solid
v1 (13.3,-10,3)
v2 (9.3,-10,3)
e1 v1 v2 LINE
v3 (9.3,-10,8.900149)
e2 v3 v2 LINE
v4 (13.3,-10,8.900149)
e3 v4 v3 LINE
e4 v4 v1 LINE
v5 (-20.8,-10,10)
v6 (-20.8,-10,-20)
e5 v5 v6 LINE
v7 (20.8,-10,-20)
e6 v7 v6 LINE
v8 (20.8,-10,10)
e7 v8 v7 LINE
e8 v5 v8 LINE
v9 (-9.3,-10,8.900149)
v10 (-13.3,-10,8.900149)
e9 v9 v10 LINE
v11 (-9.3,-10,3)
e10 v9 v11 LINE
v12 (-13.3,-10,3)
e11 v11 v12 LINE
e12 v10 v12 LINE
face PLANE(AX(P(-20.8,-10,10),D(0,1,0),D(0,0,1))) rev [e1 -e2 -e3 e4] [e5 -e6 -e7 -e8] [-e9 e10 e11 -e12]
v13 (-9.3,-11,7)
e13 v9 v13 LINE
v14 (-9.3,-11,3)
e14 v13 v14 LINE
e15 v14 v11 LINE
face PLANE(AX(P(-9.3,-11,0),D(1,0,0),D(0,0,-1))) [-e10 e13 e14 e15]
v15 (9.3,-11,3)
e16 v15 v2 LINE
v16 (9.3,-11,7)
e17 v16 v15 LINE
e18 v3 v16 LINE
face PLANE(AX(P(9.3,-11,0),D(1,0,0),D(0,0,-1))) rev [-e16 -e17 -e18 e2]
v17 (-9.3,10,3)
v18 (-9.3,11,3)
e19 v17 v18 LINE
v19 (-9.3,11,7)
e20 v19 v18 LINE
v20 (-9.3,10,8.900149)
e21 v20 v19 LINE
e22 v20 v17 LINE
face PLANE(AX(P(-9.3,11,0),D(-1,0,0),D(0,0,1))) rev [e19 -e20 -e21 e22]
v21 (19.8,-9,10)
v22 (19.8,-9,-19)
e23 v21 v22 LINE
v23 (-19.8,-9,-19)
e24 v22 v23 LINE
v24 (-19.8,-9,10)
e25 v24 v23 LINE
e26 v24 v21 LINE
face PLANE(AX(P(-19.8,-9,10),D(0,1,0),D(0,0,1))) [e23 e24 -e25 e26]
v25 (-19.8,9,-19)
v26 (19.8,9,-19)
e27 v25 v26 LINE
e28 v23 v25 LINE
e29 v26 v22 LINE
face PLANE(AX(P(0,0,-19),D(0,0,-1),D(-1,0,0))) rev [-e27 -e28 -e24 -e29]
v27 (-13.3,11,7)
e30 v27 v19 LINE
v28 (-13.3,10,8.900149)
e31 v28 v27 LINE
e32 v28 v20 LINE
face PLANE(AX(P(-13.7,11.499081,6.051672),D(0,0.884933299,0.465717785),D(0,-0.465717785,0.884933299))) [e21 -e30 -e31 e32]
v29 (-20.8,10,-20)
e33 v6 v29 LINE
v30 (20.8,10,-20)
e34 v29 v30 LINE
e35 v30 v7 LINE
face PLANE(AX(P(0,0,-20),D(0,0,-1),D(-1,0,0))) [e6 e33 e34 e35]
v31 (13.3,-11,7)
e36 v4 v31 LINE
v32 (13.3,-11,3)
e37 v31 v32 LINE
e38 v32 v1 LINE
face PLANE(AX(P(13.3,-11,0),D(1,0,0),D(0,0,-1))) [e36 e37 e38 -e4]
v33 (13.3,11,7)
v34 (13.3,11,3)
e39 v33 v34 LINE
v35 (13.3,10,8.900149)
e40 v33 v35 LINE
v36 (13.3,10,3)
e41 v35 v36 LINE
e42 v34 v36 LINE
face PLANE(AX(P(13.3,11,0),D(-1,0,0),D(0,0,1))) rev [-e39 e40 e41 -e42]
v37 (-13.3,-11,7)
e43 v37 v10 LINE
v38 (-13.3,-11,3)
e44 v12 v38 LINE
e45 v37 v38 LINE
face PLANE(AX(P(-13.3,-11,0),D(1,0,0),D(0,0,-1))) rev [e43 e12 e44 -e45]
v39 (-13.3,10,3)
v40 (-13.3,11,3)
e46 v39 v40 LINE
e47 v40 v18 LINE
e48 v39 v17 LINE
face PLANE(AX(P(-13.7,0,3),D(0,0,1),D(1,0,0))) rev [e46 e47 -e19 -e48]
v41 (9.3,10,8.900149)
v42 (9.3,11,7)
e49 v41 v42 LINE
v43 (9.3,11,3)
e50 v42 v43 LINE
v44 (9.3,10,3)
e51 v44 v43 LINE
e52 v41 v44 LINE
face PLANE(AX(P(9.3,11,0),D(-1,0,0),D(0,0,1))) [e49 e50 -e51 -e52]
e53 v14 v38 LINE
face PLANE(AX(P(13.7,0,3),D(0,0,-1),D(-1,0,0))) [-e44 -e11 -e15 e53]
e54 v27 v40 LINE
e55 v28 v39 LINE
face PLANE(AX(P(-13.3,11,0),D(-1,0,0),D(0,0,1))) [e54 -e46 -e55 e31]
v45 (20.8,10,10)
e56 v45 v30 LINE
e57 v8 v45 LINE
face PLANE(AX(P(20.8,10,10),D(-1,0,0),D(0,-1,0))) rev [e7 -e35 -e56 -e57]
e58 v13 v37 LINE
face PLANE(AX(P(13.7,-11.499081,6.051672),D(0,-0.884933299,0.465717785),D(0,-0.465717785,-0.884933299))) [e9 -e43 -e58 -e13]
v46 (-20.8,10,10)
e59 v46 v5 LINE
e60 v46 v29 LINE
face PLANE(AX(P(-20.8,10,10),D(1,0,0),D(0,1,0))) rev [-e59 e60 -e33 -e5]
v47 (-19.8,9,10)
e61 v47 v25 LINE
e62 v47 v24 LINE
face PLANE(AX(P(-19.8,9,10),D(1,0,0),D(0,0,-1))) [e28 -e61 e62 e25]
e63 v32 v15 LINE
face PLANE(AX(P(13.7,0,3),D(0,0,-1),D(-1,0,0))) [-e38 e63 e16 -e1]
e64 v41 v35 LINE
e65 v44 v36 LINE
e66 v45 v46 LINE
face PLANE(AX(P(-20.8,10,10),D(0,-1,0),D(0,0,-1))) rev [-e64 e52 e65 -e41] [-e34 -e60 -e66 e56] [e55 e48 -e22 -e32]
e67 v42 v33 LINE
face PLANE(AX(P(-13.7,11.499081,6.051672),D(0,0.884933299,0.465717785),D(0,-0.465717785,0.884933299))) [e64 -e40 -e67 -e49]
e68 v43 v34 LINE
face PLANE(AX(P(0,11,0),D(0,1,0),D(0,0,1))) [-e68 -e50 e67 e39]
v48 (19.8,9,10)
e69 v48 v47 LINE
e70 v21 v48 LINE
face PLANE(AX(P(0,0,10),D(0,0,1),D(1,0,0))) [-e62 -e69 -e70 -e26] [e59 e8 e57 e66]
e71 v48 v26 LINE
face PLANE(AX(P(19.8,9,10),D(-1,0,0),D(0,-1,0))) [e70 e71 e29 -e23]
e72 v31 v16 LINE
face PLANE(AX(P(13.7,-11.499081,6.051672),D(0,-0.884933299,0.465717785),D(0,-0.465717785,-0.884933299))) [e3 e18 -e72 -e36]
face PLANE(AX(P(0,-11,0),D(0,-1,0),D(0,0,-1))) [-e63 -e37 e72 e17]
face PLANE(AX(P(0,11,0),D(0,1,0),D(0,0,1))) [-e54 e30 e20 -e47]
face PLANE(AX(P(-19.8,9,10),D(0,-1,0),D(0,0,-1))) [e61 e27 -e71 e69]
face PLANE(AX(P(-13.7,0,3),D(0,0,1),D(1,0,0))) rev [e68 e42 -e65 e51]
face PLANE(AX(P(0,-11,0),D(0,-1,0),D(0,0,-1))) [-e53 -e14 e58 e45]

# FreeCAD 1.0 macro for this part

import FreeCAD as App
import Part
import Sketcher

V = App.Vector
Q = App.Units.Quantity

doc = App.newDocument("Part")
body = doc.addObject("PartDesign::Body", "Body")

sketch1 = body.newObject("Sketcher::SketchObject", "Sketch")
sketch1.AttachmentSupport = (doc.getObject("XY_Plane"), [""])
sketch1.MapMode = "FlatFace"
sketch1.addGeometry([
    Part.LineSegment(V(-21, 10, 0), V(-21, -10, 0)),
    Part.LineSegment(V(-21, -10, 0), V(21, -10, 0)),
    Part.LineSegment(V(21, -10, 0), V(21, 10, 0)),
    Part.LineSegment(V(21, 10, 0), V(-21, 10, 0)),
    Part.LineSegment(V(20, -9, 0), V(-20, -9, 0)),
    Part.LineSegment(V(-20, -9, 0), V(-20, 9, 0)),
    Part.LineSegment(V(-20, 9, 0), V(20, 9, 0)),
    Part.LineSegment(V(20, 9, 0), V(20, -9, 0)),
], False)
sketch1.addConstraint([
    Sketcher.Constraint("Coincident", 0, 2, 1, 1),
    Sketcher.Constraint("Coincident", 1, 2, 2, 1),
    Sketcher.Constraint("Coincident", 2, 2, 3, 1),
    Sketcher.Constraint("Coincident", 3, 2, 0, 1),
    Sketcher.Constraint("Coincident", 4, 2, 5, 1),
    Sketcher.Constraint("Coincident", 5, 2, 6, 1),
    Sketcher.Constraint("Coincident", 6, 2, 7, 1),
    Sketcher.Constraint("Coincident", 7, 2, 4, 1),
    Sketcher.Constraint("Vertical", 0),
    Sketcher.Constraint("Horizontal", 1),
    Sketcher.Constraint("Vertical", 2),
    Sketcher.Constraint("Horizontal", 3),
    Sketcher.Constraint("Horizontal", 4),
    Sketcher.Constraint("Vertical", 5),
    Sketcher.Constraint("Horizontal", 6),
    Sketcher.Constraint("Vertical", 7),
    Sketcher.Constraint("Symmetric", 0, 2, 2, 2, -1, 1),
    Sketcher.Constraint("Symmetric", 4, 2, 6, 2, -1, 1),
    Sketcher.Constraint("DistanceY", 0, 2, 0, 1, Q("20 mm")),
    Sketcher.Constraint("DistanceY", 5, 1, 5, 2, Q("18 mm")),
    Sketcher.Constraint("DistanceX", 1, 1, 1, 2, Q("41.6 mm")),
    Sketcher.Constraint("DistanceX", 4, 2, 4, 1, Q("39.6 mm")),
])
pad1 = body.newObject("PartDesign::Pad", "Pad")
pad1.Profile = sketch1
pad1.Length = 10

sketch2 = body.newObject("Sketcher::SketchObject", "Sketch001")
sketch2.AttachmentSupport = (doc.getObject("XZ_Plane"), [""])
sketch2.MapMode = "FlatFace"
sketch2.AttachmentOffset = App.Placement(V(0, 0, 10), App.Rotation())
sketch2.addGeometry([
    Part.LineSegment(V(-13.3, 10, 0), V(-13.3, 0, 0)),
    Part.LineSegment(V(-13.3, 0, 0), V(-9.3, 0, 0)),
    Part.LineSegment(V(-9.3, 0, 0), V(-9.3, 10, 0)),
    Part.LineSegment(V(-9.3, 10, 0), V(-13.3, 10, 0)),
    Part.LineSegment(V(9.3, 10, 0), V(9.3, 0, 0)),
    Part.LineSegment(V(9.3, 0, 0), V(13.3, 0, 0)),
    Part.LineSegment(V(13.3, 0, 0), V(13.3, 10, 0)),
    Part.LineSegment(V(13.3, 10, 0), V(9.3, 10, 0)),
], False)
sketch2.addConstraint([
    Sketcher.Constraint("Coincident", 0, 2, 1, 1),
    Sketcher.Constraint("Coincident", 1, 2, 2, 1),
    Sketcher.Constraint("Coincident", 2, 2, 3, 1),
    Sketcher.Constraint("Coincident", 3, 2, 0, 1),
    Sketcher.Constraint("Coincident", 4, 2, 5, 1),
    Sketcher.Constraint("Coincident", 5, 2, 6, 1),
    Sketcher.Constraint("Coincident", 6, 2, 7, 1),
    Sketcher.Constraint("Coincident", 7, 2, 4, 1),
    Sketcher.Constraint("Vertical", 0),
    Sketcher.Constraint("Horizontal", 1),
    Sketcher.Constraint("Vertical", 2),
    Sketcher.Constraint("Horizontal", 3),
    Sketcher.Constraint("Vertical", 4),
    Sketcher.Constraint("Horizontal", 5),
    Sketcher.Constraint("Vertical", 6),
    Sketcher.Constraint("Horizontal", 7),
    Sketcher.Constraint("Symmetric", 1, 2, 4, 2, -1, 1),
    Sketcher.Constraint("Symmetric", 0, 2, 5, 2, -2),
    Sketcher.Constraint("Horizontal", 3, 2, 6, 2),
    Sketcher.Constraint("DistanceX", 1, 1, 1, 2, Q("4 mm")),
    Sketcher.Constraint("DistanceY", 0, 2, 0, 1, Q("10 mm")),
    Sketcher.Constraint("DistanceX", 0, 2, -1, 1, Q("13.3 mm")),
])
pad2 = body.newObject("PartDesign::Pad", "Pad001")
pad2.Profile = sketch2
pad2.Length = 1

sketch3 = body.newObject("Sketcher::SketchObject", "Sketch002")
sketch3.AttachmentSupport = (doc.getObject("YZ_Plane"), [""])
sketch3.MapMode = "FlatFace"
sketch3.AttachmentOffset = App.Placement(V(0, 0, -13.3), App.Rotation())
sketch3.addGeometry([
    Part.LineSegment(V(-10, 8.9, 0), V(-11, 7, 0)),
    Part.LineSegment(V(-11, 7, 0), V(-11, 10, 0)),
    Part.LineSegment(V(-11, 10, 0), V(-10, 10, 0)),
    Part.LineSegment(V(-10, 10, 0), V(-10, 8.9, 0)),
    Part.LineSegment(V(-10, 0, 0), V(-11, 0, 0)),
    Part.LineSegment(V(-11, 0, 0), V(-11, 3, 0)),
    Part.LineSegment(V(-11, 3, 0), V(-10, 3, 0)),
    Part.LineSegment(V(-10, 3, 0), V(-10, 0, 0)),
], False)
sketch3.addConstraint([
    Sketcher.Constraint("Coincident", 0, 2, 1, 1),
    Sketcher.Constraint("Coincident", 1, 2, 2, 1),
    Sketcher.Constraint("Coincident", 2, 2, 3, 1),
    Sketcher.Constraint("Coincident", 3, 2, 0, 1),
    Sketcher.Constraint("Coincident", 4, 2, 5, 1),
    Sketcher.Constraint("Coincident", 5, 2, 6, 1),
    Sketcher.Constraint("Coincident", 6, 2, 7, 1),
    Sketcher.Constraint("Coincident", 7, 2, 4, 1),
    Sketcher.Constraint("Vertical", 1),
    Sketcher.Constraint("Horizontal", 2),
    Sketcher.Constraint("Vertical", 3),
    Sketcher.Constraint("Horizontal", 4),
    Sketcher.Constraint("Vertical", 5),
    Sketcher.Constraint("Horizontal", 6),
    Sketcher.Constraint("Vertical", 7),
    Sketcher.Constraint("PointOnObject", 4, 2, -1),
    Sketcher.Constraint("Vertical", 1, 2, 4, 2),
    Sketcher.Constraint("Vertical", 3, 2, 6, 2),
    Sketcher.Constraint("Equal", 1, 5),
    Sketcher.Constraint("DistanceX", 2, 1, 2, 2, Q("1 mm")),
    Sketcher.Constraint("DistanceY", 1, 1, 1, 2, Q("3 mm")),
    Sketcher.Constraint("DistanceX", 0, 2, -1, 1, Q("11 mm")),
    Sketcher.Constraint("DistanceY", -1, 1, 0, 2, Q("7 mm")),
    Sketcher.Constraint("DistanceY", 3, 2, 3, 1, Q("1.099851 mm")),
])
pocket1 = body.newObject("PartDesign::Pocket", "Pocket")
pocket1.Profile = sketch3
pocket1.Length = 27
pocket1.Reversed = True

sketch4 = body.newObject("Sketcher::SketchObject", "Sketch003")
sketch4.AttachmentSupport = (doc.getObject("XZ_Plane"), [""])
sketch4.MapMode = "FlatFace"
sketch4.AttachmentOffset = App.Placement(V(0, 0, -10), App.Rotation())
sketch4.addGeometry([
    Part.LineSegment(V(9.3, 0, 0), V(9.3, 10, 0)),
    Part.LineSegment(V(9.3, 10, 0), V(13.3, 10, 0)),
    Part.LineSegment(V(13.3, 10, 0), V(13.3, 0, 0)),
    Part.LineSegment(V(13.3, 0, 0), V(9.3, 0, 0)),
    Part.LineSegment(V(-13.3, 0, 0), V(-13.3, 10, 0)),
    Part.LineSegment(V(-13.3, 10, 0), V(-9.3, 10, 0)),
    Part.LineSegment(V(-9.3, 10, 0), V(-9.3, 0, 0)),
    Part.LineSegment(V(-9.3, 0, 0), V(-13.3, 0, 0)),
], False)
sketch4.addConstraint([
    Sketcher.Constraint("Coincident", 0, 2, 1, 1),
    Sketcher.Constraint("Coincident", 1, 2, 2, 1),
    Sketcher.Constraint("Coincident", 2, 2, 3, 1),
    Sketcher.Constraint("Coincident", 3, 2, 0, 1),
    Sketcher.Constraint("Coincident", 4, 2, 5, 1),
    Sketcher.Constraint("Coincident", 5, 2, 6, 1),
    Sketcher.Constraint("Coincident", 6, 2, 7, 1),
    Sketcher.Constraint("Coincident", 7, 2, 4, 1),
    Sketcher.Constraint("Vertical", 0),
    Sketcher.Constraint("Horizontal", 1),
    Sketcher.Constraint("Vertical", 2),
    Sketcher.Constraint("Horizontal", 3),
    Sketcher.Constraint("Vertical", 4),
    Sketcher.Constraint("Horizontal", 5),
    Sketcher.Constraint("Vertical", 6),
    Sketcher.Constraint("Horizontal", 7),
    Sketcher.Constraint("Symmetric", 3, 2, 6, 2, -1, 1),
    Sketcher.Constraint("Symmetric", 1, 2, 4, 2, -2),
    Sketcher.Constraint("PointOnObject", 2, 2, -1),
    Sketcher.Constraint("DistanceX", 1, 1, 1, 2, Q("4 mm")),
    Sketcher.Constraint("DistanceY", 0, 1, 0, 2, Q("10 mm")),
    Sketcher.Constraint("DistanceX", -1, 1, 0, 2, Q("9.3 mm")),
])
pad3 = body.newObject("PartDesign::Pad", "Pad002")
pad3.Profile = sketch4
pad3.Length = 1
pad3.Reversed = True

sketch5 = body.newObject("Sketcher::SketchObject", "Sketch004")
sketch5.AttachmentSupport = (doc.getObject("YZ_Plane"), [""])
sketch5.MapMode = "FlatFace"
sketch5.AttachmentOffset = App.Placement(V(0, 0, 13.3), App.Rotation())
sketch5.addGeometry([
    Part.LineSegment(V(11, 7, 0), V(11, 10, 0)),
    Part.LineSegment(V(11, 10, 0), V(10, 10, 0)),
    Part.LineSegment(V(10, 10, 0), V(10, 8.9, 0)),
    Part.LineSegment(V(10, 8.9, 0), V(11, 7, 0)),
    Part.LineSegment(V(11, 3, 0), V(10, 3, 0)),
    Part.LineSegment(V(10, 3, 0), V(10, 0, 0)),
    Part.LineSegment(V(10, 0, 0), V(11, 0, 0)),
    Part.LineSegment(V(11, 0, 0), V(11, 3, 0)),
], False)
sketch5.addConstraint([
    Sketcher.Constraint("Coincident", 0, 2, 1, 1),
    Sketcher.Constraint("Coincident", 1, 2, 2, 1),
    Sketcher.Constraint("Coincident", 2, 2, 3, 1),
    Sketcher.Constraint("Coincident", 3, 2, 0, 1),
    Sketcher.Constraint("Coincident", 4, 2, 5, 1),
    Sketcher.Constraint("Coincident", 5, 2, 6, 1),
    Sketcher.Constraint("Coincident", 6, 2, 7, 1),
    Sketcher.Constraint("Coincident", 7, 2, 4, 1),
    Sketcher.Constraint("Vertical", 0),
    Sketcher.Constraint("Horizontal", 1),
    Sketcher.Constraint("Vertical", 2),
    Sketcher.Constraint("Horizontal", 4),
    Sketcher.Constraint("Vertical", 5),
    Sketcher.Constraint("Horizontal", 6),
    Sketcher.Constraint("Vertical", 7),
    Sketcher.Constraint("PointOnObject", 5, 2, -1),
    Sketcher.Constraint("Vertical", 2, 2, 4, 2),
    Sketcher.Constraint("Vertical", 3, 2, 6, 2),
    Sketcher.Constraint("Equal", 0, 5),
    Sketcher.Constraint("DistanceX", 1, 2, 1, 1, Q("1 mm")),
    Sketcher.Constraint("DistanceY", 0, 1, 0, 2, Q("3 mm")),
    Sketcher.Constraint("DistanceX", -1, 1, 0, 2, Q("11 mm")),
    Sketcher.Constraint("DistanceY", -1, 1, 0, 2, Q("10 mm")),
    Sketcher.Constraint("DistanceY", 2, 2, 2, 1, Q("1.099851 mm")),
])
pocket2 = body.newObject("PartDesign::Pocket", "Pocket001")
pocket2.Profile = sketch5
pocket2.Length = 27

sketch6 = body.newObject("Sketcher::SketchObject", "Sketch005")
sketch6.AttachmentSupport = (doc.getObject("XY_Plane"), [""])
sketch6.MapMode = "FlatFace"
sketch6.addGeometry([
    Part.LineSegment(V(21, 10, 0), V(21, -10, 0)),
    Part.LineSegment(V(21, -10, 0), V(-21, -10, 0)),
    Part.LineSegment(V(-21, -10, 0), V(-21, 10, 0)),
    Part.LineSegment(V(-21, 10, 0), V(21, 10, 0)),
    Part.LineSegment(V(-20, -9, 0), V(20, -9, 0)),
    Part.LineSegment(V(20, -9, 0), V(20, 9, 0)),
    Part.LineSegment(V(20, 9, 0), V(-20, 9, 0)),
    Part.LineSegment(V(-20, 9, 0), V(-20, -9, 0)),
], False)
sketch6.addConstraint([
    Sketcher.Constraint("Coincident", 0, 2, 1, 1),
    Sketcher.Constraint("Coincident", 1, 2, 2, 1),
    Sketcher.Constraint("Coincident", 2, 2, 3, 1),
    Sketcher.Constraint("Coincident", 3, 2, 0, 1),
    Sketcher.Constraint("Coincident", 4, 2, 5, 1),
    Sketcher.Constraint("Coincident", 5, 2, 6, 1),
    Sketcher.Constraint("Coincident", 6, 2, 7, 1),
    Sketcher.Constraint("Coincident", 7, 2, 4, 1),
    Sketcher.Constraint("Vertical", 0),
    Sketcher.Constraint("Horizontal", 1),
    Sketcher.Constraint("Vertical", 2),
    Sketcher.Constraint("Horizontal", 3),
    Sketcher.Constraint("Horizontal", 4),
    Sketcher.Constraint("Vertical", 5),
    Sketcher.Constraint("Horizontal", 6),
    Sketcher.Constraint("Vertical", 7),
    Sketcher.Constraint("Symmetric", 0, 2, 2, 2, -1, 1),
    Sketcher.Constraint("Symmetric", 4, 2, 6, 2, -1, 1),
    Sketcher.Constraint("DistanceY", 0, 2, 0, 1, Q("20 mm")),
    Sketcher.Constraint("DistanceY", 5, 1, 5, 2, Q("18 mm")),
    Sketcher.Constraint("DistanceX", 1, 2, 1, 1, Q("41.6 mm")),
    Sketcher.Constraint("DistanceX", 4, 1, 4, 2, Q("39.6 mm")),
])
pad4 = body.newObject("PartDesign::Pad", "Pad003")
pad4.Profile = sketch6
pad4.Length = 19
pad4.Reversed = True

sketch7 = body.newObject("Sketcher::SketchObject", "Sketch006")
sketch7.AttachmentSupport = (doc.getObject("XY_Plane"), [""])
sketch7.MapMode = "FlatFace"
sketch7.AttachmentOffset = App.Placement(V(0, 0, -19), App.Rotation())
sketch7.addGeometry([
    Part.LineSegment(V(21, 10, 0), V(21, -10, 0)),
    Part.LineSegment(V(21, -10, 0), V(-21, -10, 0)),
    Part.LineSegment(V(-21, -10, 0), V(-21, 10, 0)),
    Part.LineSegment(V(-21, 10, 0), V(21, 10, 0)),
], False)
sketch7.addConstraint([
    Sketcher.Constraint("Coincident", 0, 2, 1, 1),
    Sketcher.Constraint("Coincident", 1, 2, 2, 1),
    Sketcher.Constraint("Coincident", 2, 2, 3, 1),
    Sketcher.Constraint("Coincident", 3, 2, 0, 1),
    Sketcher.Constraint("Vertical", 0),
    Sketcher.Constraint("Horizontal", 1),
    Sketcher.Constraint("Vertical", 2),
    Sketcher.Constraint("Horizontal", 3),
    Sketcher.Constraint("Symmetric", 0, 2, 2, 2, -1, 1),
    Sketcher.Constraint("DistanceY", 0, 2, 0, 1, Q("20 mm")),
    Sketcher.Constraint("DistanceX", 1, 2, 1, 1, Q("41.6 mm")),
])
pad5 = body.newObject("PartDesign::Pad", "Pad004")
pad5.Profile = sketch7
pad5.Length = 1
pad5.Reversed = True

doc.recompute()
